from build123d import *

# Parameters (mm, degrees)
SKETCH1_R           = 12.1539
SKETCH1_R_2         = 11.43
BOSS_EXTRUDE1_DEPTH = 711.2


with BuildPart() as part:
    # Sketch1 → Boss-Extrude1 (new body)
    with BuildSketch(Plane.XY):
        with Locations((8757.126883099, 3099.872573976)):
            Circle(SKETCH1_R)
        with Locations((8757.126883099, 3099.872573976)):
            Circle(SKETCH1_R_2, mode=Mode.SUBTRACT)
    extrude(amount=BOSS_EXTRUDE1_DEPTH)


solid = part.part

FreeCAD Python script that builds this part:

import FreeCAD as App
import Part
import Sketcher
Q = App.Units.Quantity

doc = App.newDocument("Part")
body = doc.addObject("PartDesign::Body", "Body")

# Sketch on XY plane
sketch1 = body.newObject("Sketcher::SketchObject", "Sketch")
sketch1.AttachmentSupport = (doc.getObject("XY_Plane"), [""])
sketch1.MapMode = "FlatFace"
sketch1.addGeometry(Part.Circle(App.Vector(8757, 3100, 0), App.Vector(0, 0, 1), 12), False)
sketch1.addGeometry(Part.Circle(App.Vector(8757, 3100, 0), App.Vector(0, 0, 1), 11), False)
sketch1.addConstraint(Sketcher.Constraint("Coincident", 1, 3, 0, 3))
sketch1.addConstraint(Sketcher.Constraint("Diameter", 1, Q("0.9 in")))
sketch1.addConstraint(Sketcher.Constraint("Diameter", 0, Q("0.957 in")))
sketch1.addConstraint(Sketcher.Constraint("DistanceX", -1, 1, 0, 3, Q("8757.126883 mm")))
sketch1.addConstraint(Sketcher.Constraint("DistanceY", -1, 1, 0, 3, Q("3099.872574 mm")))
pad1 = body.newObject("PartDesign::Pad", "Pad")
pad1.Profile = sketch1
pad1.Length = Q("28 in")

doc.recompute()
